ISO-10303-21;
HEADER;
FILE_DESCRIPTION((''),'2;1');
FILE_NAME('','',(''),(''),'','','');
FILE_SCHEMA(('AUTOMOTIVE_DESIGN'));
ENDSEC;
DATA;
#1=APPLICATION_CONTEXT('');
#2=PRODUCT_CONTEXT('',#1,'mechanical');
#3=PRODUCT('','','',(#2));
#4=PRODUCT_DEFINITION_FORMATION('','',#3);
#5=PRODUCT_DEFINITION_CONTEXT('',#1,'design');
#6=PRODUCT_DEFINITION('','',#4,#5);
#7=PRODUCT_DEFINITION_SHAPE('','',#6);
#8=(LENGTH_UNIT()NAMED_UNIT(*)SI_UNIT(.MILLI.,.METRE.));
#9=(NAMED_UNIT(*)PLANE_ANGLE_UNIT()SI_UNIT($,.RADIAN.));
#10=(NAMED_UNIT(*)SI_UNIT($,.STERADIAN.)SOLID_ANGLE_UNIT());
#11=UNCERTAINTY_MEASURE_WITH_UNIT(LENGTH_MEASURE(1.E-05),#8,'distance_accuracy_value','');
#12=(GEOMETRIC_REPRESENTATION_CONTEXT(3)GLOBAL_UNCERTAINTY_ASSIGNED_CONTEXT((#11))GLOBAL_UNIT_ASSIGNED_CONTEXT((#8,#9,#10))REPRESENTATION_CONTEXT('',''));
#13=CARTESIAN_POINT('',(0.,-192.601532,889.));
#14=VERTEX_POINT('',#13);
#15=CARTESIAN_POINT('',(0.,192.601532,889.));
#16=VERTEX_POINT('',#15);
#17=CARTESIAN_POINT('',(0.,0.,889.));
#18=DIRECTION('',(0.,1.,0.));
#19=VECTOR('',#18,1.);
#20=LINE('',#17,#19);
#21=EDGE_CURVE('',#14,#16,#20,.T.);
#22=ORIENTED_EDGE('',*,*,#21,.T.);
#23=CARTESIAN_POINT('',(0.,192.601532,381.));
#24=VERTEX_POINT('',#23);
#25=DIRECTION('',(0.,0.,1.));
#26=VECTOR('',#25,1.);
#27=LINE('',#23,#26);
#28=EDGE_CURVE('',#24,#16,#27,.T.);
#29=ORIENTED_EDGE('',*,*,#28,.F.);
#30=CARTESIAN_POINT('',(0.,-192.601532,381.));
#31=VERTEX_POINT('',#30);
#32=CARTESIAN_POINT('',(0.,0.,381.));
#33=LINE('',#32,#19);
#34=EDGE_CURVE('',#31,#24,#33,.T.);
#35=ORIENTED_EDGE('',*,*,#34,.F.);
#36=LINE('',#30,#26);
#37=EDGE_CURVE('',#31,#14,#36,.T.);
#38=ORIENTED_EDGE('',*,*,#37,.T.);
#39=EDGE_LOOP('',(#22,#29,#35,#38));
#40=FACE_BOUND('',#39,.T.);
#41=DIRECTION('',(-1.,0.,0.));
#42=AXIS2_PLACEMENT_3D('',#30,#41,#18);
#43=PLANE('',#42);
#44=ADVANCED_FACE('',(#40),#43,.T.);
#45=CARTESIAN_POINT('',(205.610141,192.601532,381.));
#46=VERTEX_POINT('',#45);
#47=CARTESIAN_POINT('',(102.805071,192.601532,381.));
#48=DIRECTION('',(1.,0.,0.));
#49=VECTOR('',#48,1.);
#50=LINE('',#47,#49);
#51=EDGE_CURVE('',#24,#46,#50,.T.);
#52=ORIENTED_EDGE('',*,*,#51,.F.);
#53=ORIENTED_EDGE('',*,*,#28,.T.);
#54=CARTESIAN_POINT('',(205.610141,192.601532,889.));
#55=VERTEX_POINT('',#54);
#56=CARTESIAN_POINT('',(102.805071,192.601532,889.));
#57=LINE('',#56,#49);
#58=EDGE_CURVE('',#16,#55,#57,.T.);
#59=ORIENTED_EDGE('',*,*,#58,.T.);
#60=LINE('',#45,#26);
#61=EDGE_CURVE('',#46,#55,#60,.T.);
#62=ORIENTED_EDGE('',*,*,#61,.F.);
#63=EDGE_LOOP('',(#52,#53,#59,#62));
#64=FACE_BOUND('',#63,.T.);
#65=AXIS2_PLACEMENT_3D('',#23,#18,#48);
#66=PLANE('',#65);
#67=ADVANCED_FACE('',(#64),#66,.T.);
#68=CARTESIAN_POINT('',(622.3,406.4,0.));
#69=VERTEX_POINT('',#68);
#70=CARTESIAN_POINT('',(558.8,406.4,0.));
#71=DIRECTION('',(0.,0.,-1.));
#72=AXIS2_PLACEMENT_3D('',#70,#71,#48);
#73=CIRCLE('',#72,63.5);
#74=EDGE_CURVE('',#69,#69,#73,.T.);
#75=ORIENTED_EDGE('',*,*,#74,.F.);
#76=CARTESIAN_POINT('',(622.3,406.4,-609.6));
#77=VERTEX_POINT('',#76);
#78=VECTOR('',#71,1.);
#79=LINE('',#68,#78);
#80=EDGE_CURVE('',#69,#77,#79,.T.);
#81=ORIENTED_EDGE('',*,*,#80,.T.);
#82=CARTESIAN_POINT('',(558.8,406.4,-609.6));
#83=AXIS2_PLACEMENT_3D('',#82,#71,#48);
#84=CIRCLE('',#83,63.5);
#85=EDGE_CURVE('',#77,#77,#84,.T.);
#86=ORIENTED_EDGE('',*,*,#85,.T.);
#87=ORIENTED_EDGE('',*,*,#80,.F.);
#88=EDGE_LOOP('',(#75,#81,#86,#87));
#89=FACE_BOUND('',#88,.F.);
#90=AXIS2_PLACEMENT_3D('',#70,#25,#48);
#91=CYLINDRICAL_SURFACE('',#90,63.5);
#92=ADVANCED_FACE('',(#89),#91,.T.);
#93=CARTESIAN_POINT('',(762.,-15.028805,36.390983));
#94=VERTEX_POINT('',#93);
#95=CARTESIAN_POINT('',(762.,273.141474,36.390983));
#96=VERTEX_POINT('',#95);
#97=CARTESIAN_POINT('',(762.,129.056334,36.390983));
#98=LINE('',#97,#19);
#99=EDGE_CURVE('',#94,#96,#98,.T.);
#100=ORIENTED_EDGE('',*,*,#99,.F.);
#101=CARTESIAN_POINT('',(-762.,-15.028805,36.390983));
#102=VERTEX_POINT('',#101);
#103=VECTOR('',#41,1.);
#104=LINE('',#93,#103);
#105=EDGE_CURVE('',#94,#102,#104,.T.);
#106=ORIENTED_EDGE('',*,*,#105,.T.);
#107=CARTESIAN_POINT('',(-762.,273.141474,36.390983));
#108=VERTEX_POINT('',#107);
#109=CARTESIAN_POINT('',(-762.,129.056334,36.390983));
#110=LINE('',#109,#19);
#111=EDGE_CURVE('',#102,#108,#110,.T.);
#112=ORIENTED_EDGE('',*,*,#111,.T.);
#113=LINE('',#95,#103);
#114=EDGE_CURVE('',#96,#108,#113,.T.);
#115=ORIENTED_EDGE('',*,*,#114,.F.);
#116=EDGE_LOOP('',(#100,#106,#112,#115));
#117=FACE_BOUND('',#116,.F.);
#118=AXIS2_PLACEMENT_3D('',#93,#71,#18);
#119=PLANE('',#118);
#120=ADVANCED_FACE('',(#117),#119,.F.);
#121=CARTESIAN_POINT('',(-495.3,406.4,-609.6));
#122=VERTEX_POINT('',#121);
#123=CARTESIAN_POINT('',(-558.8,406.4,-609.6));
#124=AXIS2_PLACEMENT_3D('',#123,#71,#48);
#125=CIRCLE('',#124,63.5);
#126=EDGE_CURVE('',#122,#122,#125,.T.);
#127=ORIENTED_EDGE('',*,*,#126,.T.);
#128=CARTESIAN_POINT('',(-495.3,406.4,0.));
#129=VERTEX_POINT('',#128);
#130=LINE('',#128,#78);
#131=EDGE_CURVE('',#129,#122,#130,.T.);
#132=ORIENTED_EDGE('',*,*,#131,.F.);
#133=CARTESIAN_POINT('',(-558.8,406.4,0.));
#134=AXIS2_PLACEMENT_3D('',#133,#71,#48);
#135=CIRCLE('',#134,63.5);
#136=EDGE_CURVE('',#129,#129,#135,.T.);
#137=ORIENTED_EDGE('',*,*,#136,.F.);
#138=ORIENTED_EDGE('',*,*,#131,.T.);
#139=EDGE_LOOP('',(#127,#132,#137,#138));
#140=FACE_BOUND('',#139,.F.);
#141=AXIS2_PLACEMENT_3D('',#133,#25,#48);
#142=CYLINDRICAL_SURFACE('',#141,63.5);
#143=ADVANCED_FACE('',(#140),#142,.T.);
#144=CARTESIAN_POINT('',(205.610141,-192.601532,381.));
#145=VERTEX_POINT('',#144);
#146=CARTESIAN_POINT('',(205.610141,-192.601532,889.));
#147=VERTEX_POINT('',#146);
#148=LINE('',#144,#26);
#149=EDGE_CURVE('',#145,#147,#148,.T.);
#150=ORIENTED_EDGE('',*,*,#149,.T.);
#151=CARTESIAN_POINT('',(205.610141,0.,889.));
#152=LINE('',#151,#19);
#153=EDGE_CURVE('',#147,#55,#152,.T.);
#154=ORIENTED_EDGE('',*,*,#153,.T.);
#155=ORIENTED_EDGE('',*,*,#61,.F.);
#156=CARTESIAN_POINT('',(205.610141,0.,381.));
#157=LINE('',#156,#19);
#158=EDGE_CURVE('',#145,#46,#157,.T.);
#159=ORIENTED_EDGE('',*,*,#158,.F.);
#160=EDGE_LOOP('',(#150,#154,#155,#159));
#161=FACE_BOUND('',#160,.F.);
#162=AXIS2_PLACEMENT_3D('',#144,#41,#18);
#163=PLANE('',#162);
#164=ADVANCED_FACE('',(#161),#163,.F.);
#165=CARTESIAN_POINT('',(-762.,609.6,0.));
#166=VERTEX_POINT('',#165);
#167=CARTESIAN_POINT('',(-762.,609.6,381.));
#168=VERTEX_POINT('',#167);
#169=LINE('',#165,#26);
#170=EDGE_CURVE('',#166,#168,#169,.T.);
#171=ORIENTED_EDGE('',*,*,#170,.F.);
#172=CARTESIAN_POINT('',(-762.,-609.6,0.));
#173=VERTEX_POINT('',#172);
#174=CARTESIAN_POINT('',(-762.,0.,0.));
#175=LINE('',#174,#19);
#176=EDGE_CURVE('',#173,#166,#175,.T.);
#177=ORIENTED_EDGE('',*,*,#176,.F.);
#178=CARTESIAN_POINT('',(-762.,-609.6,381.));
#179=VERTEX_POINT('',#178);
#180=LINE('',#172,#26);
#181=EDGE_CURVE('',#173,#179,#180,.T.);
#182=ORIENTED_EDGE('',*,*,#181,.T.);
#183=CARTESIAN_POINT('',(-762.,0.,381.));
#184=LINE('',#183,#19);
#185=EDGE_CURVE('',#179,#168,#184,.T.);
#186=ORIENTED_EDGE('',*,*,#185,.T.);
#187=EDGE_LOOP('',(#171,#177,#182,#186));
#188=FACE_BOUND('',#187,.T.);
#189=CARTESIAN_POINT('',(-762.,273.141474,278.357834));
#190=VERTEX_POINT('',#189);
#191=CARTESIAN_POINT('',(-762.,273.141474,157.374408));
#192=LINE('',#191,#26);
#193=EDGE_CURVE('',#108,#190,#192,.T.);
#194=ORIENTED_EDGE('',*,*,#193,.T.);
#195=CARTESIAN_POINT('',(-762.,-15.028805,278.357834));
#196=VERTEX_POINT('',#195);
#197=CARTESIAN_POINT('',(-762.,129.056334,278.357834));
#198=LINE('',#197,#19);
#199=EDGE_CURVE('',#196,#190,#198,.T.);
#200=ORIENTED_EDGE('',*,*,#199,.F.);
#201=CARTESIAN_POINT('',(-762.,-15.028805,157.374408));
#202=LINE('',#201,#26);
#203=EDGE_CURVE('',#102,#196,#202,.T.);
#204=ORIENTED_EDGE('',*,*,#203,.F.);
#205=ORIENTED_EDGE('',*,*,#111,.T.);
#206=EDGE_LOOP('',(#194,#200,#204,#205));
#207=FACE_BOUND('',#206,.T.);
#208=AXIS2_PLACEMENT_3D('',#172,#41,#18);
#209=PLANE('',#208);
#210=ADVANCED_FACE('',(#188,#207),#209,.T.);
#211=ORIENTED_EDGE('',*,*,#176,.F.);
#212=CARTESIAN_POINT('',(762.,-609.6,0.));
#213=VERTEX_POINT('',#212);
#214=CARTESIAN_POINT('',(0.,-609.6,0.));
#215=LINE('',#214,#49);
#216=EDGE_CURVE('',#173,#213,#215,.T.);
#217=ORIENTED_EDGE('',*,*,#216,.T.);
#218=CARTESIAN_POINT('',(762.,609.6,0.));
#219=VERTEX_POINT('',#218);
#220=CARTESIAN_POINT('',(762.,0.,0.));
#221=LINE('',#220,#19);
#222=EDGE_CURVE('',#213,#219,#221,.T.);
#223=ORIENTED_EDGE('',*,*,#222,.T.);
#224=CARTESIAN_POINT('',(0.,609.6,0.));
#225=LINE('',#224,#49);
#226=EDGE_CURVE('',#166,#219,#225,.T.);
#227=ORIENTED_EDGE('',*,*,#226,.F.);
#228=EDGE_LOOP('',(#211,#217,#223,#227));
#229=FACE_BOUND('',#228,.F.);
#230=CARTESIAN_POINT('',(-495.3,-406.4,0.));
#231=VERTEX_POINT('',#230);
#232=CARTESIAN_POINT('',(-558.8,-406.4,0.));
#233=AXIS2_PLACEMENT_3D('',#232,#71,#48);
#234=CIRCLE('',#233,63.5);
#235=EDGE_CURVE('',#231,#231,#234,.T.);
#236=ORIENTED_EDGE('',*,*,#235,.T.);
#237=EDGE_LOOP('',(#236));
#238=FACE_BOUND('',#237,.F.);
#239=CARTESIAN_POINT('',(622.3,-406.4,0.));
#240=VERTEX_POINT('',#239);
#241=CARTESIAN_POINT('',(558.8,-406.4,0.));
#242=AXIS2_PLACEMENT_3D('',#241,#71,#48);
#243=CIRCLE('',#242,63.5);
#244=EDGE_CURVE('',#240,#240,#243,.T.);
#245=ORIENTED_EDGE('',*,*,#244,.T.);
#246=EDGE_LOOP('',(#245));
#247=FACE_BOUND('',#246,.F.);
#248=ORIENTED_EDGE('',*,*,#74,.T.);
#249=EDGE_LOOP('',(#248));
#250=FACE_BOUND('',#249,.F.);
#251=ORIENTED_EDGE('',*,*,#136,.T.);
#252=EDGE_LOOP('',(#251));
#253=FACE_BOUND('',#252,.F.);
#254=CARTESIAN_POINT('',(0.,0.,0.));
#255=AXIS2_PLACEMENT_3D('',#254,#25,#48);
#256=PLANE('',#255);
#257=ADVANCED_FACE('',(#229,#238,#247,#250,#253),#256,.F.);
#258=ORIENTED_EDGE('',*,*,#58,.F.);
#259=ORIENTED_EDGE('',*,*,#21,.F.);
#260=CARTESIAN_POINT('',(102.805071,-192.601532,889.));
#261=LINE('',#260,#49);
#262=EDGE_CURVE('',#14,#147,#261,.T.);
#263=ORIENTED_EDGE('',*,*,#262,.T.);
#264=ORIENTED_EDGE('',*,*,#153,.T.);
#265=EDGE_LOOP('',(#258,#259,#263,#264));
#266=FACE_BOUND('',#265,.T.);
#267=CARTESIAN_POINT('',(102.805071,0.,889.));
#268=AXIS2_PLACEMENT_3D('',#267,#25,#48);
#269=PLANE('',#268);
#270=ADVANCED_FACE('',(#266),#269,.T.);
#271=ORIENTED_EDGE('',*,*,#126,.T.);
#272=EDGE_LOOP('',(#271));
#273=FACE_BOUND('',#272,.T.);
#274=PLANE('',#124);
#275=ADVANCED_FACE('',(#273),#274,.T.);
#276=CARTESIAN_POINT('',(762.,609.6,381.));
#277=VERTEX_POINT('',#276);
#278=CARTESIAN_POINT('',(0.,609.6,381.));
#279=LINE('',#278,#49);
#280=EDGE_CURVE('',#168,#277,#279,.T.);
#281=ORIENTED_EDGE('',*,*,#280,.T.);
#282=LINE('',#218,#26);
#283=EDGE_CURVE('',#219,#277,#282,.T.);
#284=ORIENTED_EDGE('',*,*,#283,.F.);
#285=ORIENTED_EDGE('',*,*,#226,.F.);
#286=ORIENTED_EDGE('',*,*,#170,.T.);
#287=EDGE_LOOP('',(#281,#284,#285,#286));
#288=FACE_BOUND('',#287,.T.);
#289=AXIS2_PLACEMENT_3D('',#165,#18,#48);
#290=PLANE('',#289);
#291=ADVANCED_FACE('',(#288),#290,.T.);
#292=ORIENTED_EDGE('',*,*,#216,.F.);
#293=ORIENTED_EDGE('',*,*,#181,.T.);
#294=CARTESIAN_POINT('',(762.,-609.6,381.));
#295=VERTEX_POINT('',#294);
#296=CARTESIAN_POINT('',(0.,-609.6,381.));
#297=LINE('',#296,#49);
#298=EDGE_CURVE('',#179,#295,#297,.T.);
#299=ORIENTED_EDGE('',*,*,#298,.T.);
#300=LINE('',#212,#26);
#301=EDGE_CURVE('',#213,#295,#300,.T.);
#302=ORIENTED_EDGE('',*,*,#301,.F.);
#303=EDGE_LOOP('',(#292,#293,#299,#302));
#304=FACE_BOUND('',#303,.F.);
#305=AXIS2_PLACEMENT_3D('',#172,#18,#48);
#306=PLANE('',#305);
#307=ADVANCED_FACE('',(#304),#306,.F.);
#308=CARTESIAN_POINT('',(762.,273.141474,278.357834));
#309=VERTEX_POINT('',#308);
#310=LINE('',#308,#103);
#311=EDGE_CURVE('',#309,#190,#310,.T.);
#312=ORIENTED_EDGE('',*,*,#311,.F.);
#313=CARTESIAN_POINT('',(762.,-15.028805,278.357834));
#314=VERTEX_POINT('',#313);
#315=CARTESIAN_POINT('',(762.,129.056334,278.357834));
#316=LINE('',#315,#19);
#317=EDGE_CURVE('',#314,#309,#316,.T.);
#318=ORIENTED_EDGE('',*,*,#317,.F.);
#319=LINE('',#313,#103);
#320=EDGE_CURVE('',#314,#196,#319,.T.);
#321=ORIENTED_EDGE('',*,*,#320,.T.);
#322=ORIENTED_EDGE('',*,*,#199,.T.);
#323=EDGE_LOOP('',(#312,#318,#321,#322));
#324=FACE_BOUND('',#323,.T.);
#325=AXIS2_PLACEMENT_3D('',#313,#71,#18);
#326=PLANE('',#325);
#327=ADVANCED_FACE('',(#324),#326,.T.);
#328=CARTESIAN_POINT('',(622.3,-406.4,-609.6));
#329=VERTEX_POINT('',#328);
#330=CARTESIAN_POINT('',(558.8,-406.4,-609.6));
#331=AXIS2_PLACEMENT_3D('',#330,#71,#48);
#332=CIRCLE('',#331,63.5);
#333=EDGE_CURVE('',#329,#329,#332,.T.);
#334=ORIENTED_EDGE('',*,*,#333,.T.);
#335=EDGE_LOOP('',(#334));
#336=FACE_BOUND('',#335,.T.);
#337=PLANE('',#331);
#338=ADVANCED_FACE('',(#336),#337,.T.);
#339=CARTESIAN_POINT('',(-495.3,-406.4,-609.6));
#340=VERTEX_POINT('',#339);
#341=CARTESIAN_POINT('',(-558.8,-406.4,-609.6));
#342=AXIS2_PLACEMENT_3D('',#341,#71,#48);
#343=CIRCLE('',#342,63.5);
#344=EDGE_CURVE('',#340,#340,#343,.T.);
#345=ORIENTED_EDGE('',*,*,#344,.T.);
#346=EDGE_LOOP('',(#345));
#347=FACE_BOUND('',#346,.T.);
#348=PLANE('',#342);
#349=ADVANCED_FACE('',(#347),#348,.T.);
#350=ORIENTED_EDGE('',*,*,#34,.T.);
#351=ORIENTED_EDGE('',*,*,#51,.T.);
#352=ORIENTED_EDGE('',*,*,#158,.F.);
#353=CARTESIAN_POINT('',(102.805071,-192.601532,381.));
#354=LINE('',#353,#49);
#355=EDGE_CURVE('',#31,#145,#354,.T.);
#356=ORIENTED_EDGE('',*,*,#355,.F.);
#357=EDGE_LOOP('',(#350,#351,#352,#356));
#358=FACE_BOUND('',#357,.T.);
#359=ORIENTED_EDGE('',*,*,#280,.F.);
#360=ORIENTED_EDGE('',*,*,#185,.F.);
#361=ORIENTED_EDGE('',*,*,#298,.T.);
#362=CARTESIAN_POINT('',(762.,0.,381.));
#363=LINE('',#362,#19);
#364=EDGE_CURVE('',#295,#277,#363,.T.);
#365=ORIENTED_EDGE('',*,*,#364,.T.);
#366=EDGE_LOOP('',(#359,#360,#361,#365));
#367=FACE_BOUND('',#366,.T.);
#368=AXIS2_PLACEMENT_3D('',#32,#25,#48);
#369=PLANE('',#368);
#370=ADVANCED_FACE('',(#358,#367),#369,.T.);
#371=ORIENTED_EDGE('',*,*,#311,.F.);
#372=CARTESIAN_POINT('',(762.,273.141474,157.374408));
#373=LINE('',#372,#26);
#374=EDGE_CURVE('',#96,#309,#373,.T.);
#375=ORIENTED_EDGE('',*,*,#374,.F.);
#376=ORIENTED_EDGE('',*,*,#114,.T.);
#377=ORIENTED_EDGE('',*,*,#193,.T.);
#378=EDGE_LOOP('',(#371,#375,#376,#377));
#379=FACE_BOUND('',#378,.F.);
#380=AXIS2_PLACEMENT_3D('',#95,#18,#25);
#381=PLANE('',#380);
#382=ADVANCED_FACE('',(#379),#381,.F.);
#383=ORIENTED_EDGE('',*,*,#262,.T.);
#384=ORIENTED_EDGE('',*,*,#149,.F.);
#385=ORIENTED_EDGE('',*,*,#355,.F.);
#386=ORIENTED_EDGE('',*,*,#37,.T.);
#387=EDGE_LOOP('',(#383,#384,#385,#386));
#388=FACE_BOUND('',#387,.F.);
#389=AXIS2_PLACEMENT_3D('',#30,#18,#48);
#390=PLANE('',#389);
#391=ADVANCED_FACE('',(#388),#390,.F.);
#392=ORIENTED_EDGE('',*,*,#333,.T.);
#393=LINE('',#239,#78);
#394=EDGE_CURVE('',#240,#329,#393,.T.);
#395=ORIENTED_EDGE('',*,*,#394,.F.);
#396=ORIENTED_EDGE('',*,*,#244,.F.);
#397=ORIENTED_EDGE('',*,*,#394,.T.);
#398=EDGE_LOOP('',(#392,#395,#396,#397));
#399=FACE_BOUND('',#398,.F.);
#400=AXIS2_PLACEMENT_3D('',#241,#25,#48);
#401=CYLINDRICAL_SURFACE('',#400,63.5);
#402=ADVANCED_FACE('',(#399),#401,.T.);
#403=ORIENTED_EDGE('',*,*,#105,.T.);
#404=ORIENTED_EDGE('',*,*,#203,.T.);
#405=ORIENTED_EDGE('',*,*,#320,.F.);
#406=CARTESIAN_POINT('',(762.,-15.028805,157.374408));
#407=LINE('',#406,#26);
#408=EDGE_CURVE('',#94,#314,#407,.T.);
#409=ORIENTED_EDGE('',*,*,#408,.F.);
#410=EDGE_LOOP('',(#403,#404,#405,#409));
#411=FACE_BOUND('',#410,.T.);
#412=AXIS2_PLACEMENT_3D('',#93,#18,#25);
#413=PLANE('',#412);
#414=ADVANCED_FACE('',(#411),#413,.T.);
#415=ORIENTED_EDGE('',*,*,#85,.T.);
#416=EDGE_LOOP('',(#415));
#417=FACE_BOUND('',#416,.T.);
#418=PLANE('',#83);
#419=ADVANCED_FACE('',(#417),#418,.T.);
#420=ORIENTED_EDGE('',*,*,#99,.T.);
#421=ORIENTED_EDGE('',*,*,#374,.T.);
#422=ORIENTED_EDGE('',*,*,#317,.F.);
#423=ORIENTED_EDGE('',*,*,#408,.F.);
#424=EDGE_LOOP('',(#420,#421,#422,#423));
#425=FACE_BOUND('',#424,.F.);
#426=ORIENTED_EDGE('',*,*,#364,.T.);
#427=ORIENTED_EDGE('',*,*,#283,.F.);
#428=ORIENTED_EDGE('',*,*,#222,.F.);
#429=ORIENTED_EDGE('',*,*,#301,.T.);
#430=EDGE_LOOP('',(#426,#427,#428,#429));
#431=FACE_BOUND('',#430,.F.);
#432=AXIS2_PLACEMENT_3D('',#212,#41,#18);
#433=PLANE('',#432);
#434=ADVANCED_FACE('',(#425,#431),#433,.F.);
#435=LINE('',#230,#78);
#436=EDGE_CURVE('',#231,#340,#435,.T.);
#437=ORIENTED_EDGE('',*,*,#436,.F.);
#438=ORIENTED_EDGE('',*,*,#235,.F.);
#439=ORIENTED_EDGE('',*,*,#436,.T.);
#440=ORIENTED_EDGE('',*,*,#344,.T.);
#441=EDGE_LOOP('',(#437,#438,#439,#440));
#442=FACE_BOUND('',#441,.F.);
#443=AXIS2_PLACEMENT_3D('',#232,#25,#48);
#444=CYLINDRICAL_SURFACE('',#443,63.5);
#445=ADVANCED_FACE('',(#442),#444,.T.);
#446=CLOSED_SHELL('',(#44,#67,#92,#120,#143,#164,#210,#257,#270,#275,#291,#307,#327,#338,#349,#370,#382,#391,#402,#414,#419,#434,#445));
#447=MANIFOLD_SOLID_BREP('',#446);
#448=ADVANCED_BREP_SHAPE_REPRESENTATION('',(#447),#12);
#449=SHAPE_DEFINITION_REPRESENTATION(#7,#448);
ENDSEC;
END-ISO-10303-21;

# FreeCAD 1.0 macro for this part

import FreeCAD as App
import Part
import Sketcher
from FreeCAD import Vector
Q = App.Units.Quantity


def add_polygon(sketch, points):
    """Adds a closed chain of lines whose ends are joined by coincident constraints."""
    first, n = sketch.GeometryCount, len(points)
    for a, b in zip(points, points[1:] + points[:1]):
        sketch.addGeometry(Part.LineSegment(App.Vector(*a, 0), App.Vector(*b, 0)), False)
    for i in range(n):
        sketch.addConstraint(Sketcher.Constraint("Coincident", first + i, 2, first + (i + 1) % n, 1))

doc = App.newDocument("Part")
body = doc.addObject("PartDesign::Body", "Body")

sketch1 = doc.addObject("Sketcher::SketchObject", "Sketch")
body.addObject(sketch1)
sketch1.AttachmentSupport = (doc.XY_Plane, [""])
sketch1.MapMode = "FlatFace"
add_polygon(sketch1, [(-762, 609.6), (-762, -609.6), (762, -609.6), (762, 609.6)])
sketch1.addConstraint([
    Sketcher.Constraint("Vertical", 0),
    Sketcher.Constraint("Horizontal", 1),
    Sketcher.Constraint("Vertical", 2),
    Sketcher.Constraint("Horizontal", 3),
    Sketcher.Constraint("Symmetric", 0, 2, 2, 2, -1, 1),
    Sketcher.Constraint("DistanceX", 1, 1, 1, 2, Q("60 in")),
    Sketcher.Constraint("DistanceY", 0, 2, 0, 1, Q("48 in")),
])
pad1 = doc.addObject("PartDesign::Pad", "Pad")
body.addObject(pad1)
pad1.Profile = sketch1
pad1.Length = Q("15 in")

sketch2 = doc.addObject("Sketcher::SketchObject", "Sketch001")
body.addObject(sketch2)
sketch2.AttachmentSupport = (doc.XY_Plane, [""])
sketch2.MapMode = "FlatFace"
sketch2.addGeometry([
    Part.Circle(Vector(-558.8, 406.4, 0), Vector(0, 0, 1), 63.5),
    Part.Circle(Vector(-558.8, -406.4, 0), Vector(0, 0, 1), 63.5),
    Part.Circle(Vector(558.8, -406.4, 0), Vector(0, 0, 1), 63.5),
    Part.Circle(Vector(558.8, 406.4, 0), Vector(0, 0, 1), 63.5),
], False)
sketch2.addConstraint([
    Sketcher.Constraint("Equal", 0, 1),
    Sketcher.Constraint("Equal", 1, 2),
    Sketcher.Constraint("Equal", 2, 3),
    Sketcher.Constraint("Symmetric", 0, 3, 2, 3, -1, 1),
    Sketcher.Constraint("Symmetric", 1, 3, 3, 3, -1, 1),
    Sketcher.Constraint("Symmetric", 1, 3, 2, 3, -2),
    Sketcher.Constraint("Diameter", 0, Q("5 in")),
    Sketcher.Constraint("DistanceX", 0, 3, -1, 1, Q("22 in")),
    Sketcher.Constraint("DistanceY", -1, 1, 0, 3, Q("16 in")),
])
pad2 = doc.addObject("PartDesign::Pad", "Pad001")
body.addObject(pad2)
pad2.Profile = sketch2
pad2.Length = Q("24 in")
pad2.Reversed = True

sketch3 = doc.addObject("Sketcher::SketchObject", "Sketch002")
body.addObject(sketch3)
sketch3.AttachmentSupport = (doc.YZ_Plane, [""])
sketch3.MapMode = "FlatFace"
sketch3.AttachmentOffset = App.Placement(Vector(0, 0, 30 * 25.4), App.Rotation())
add_polygon(sketch3, [(-15.028805, 278.357834), (-15.028805, 36.390983), (273.141474, 36.390983), (273.141474, 278.357834)])
sketch3.addConstraint([
    Sketcher.Constraint("Vertical", 0),
    Sketcher.Constraint("Horizontal", 1),
    Sketcher.Constraint("Vertical", 2),
    Sketcher.Constraint("Horizontal", 3),
    Sketcher.Constraint("DistanceX", 1, 1, 1, 2, 288.170278),
    Sketcher.Constraint("DistanceY", 0, 2, 0, 1, 241.966851),
    Sketcher.Constraint("DistanceX", 0, 2, -1, 1, 15.028805),
    Sketcher.Constraint("DistanceY", -1, 1, 0, 2, 36.390983),
])
pocket1 = doc.addObject("PartDesign::Pocket", "Pocket")
body.addObject(pocket1)
pocket1.Profile = sketch3
pocket1.Type = "ThroughAll"

sketch4 = doc.addObject("Sketcher::SketchObject", "Sketch003")
body.addObject(sketch4)
sketch4.AttachmentSupport = (doc.XY_Plane, [""])
sketch4.MapMode = "FlatFace"
sketch4.AttachmentOffset = App.Placement(Vector(0, 0, 15 * 25.4), App.Rotation())
add_polygon(sketch4, [(0, 192.601532), (0, -192.601532), (205.610141, -192.601532), (205.610141, 192.601532)])
sketch4.addConstraint([
    Sketcher.Constraint("Vertical", 0),
    Sketcher.Constraint("Horizontal", 1),
    Sketcher.Constraint("Vertical", 2),
    Sketcher.Constraint("Horizontal", 3),
    Sketcher.Constraint("Symmetric", 0, 2, 3, 2, -1, 1),
    Sketcher.Constraint("DistanceX", 1, 1, 1, 2, 205.610141),
    Sketcher.Constraint("DistanceY", 0, 2, 0, 1, 385.203063),
])
pad3 = doc.addObject("PartDesign::Pad", "Pad002")
body.addObject(pad3)
pad3.Profile = sketch4
pad3.Length = Q("20 in")

doc.recompute()
